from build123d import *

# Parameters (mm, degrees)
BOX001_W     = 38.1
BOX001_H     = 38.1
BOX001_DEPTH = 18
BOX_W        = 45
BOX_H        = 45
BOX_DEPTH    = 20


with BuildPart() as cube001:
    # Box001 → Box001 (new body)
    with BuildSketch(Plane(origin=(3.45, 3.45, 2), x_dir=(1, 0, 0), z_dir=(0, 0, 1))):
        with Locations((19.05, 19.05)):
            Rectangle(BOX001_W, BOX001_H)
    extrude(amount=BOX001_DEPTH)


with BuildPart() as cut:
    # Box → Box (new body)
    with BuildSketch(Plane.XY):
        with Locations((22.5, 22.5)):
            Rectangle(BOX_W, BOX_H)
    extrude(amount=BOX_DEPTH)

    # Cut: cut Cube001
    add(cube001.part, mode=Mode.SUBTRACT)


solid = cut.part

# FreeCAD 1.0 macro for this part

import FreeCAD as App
import Part
import Sketcher
from FreeCAD import Vector


def add_polygon(sketch, points):
    """Adds a closed chain of lines whose ends are joined by coincident constraints."""
    first, n = sketch.GeometryCount, len(points)
    for a, b in zip(points, points[1:] + points[:1]):
        sketch.addGeometry(Part.LineSegment(App.Vector(*a, 0), App.Vector(*b, 0)), False)
    for i in range(n):
        sketch.addConstraint(Sketcher.Constraint("Coincident", first + i, 2, first + (i + 1) % n, 1))

doc = App.newDocument("Part")
body = doc.addObject("PartDesign::Body", "Body")

# Sketch on XY plane
sketch1 = body.newObject("Sketcher::SketchObject", "Sketch")
sketch1.AttachmentSupport = (doc.getObject("XY_Plane"), [""])
sketch1.MapMode = "FlatFace"
sketch1.AttachmentOffset = App.Placement(Vector(0, 0, 2), App.Rotation())
add_polygon(sketch1, [(3, 42), (3, 3), (42, 3), (42, 42)])  # lines 0-3
sketch1.addConstraint(Sketcher.Constraint("Vertical", 0))
sketch1.addConstraint(Sketcher.Constraint("Horizontal", 1))
sketch1.addConstraint(Sketcher.Constraint("Vertical", 2))
sketch1.addConstraint(Sketcher.Constraint("Horizontal", 3))
sketch1.addConstraint(Sketcher.Constraint("Equal", 3, 0))
sketch1.addConstraint(Sketcher.Constraint("DistanceX", 1, 1, 1, 2, 38.1))
sketch1.addConstraint(Sketcher.Constraint("DistanceX", -1, 1, 0, 2, 3.45))
sketch1.addConstraint(Sketcher.Constraint("DistanceY", -1, 1, 0, 2, 3.45))
pad1 = body.newObject("PartDesign::Pad", "Pad")
pad1.Profile = sketch1
pad1.Length = 18
body2 = doc.addObject("PartDesign::Body", "Body001")

# Sketch on XY plane
sketch2 = body2.newObject("Sketcher::SketchObject", "Sketch001")
sketch2.AttachmentSupport = (doc.getObject("XY_Plane001"), [""])
sketch2.MapMode = "FlatFace"
add_polygon(sketch2, [(0, 45), (0, 0), (45, 0), (45, 45)])  # lines 0-3
sketch2.addConstraint(Sketcher.Constraint("Vertical", 0))
sketch2.addConstraint(Sketcher.Constraint("Horizontal", 1))
sketch2.addConstraint(Sketcher.Constraint("Vertical", 2))
sketch2.addConstraint(Sketcher.Constraint("Horizontal", 3))
sketch2.addConstraint(Sketcher.Constraint("Coincident", 0, 2, -1, 1))
sketch2.addConstraint(Sketcher.Constraint("Equal", 3, 0))
sketch2.addConstraint(Sketcher.Constraint("DistanceX", 1, 1, 1, 2, 45.0))
pad2 = body2.newObject("PartDesign::Pad", "Pad001")
pad2.Profile = sketch2
pad2.Length = 20
doc.recompute()

boolean = body2.newObject("PartDesign::Boolean", "Boolean")
boolean.Type = "Cut"
boolean.addObjects([body])

doc.recompute()
